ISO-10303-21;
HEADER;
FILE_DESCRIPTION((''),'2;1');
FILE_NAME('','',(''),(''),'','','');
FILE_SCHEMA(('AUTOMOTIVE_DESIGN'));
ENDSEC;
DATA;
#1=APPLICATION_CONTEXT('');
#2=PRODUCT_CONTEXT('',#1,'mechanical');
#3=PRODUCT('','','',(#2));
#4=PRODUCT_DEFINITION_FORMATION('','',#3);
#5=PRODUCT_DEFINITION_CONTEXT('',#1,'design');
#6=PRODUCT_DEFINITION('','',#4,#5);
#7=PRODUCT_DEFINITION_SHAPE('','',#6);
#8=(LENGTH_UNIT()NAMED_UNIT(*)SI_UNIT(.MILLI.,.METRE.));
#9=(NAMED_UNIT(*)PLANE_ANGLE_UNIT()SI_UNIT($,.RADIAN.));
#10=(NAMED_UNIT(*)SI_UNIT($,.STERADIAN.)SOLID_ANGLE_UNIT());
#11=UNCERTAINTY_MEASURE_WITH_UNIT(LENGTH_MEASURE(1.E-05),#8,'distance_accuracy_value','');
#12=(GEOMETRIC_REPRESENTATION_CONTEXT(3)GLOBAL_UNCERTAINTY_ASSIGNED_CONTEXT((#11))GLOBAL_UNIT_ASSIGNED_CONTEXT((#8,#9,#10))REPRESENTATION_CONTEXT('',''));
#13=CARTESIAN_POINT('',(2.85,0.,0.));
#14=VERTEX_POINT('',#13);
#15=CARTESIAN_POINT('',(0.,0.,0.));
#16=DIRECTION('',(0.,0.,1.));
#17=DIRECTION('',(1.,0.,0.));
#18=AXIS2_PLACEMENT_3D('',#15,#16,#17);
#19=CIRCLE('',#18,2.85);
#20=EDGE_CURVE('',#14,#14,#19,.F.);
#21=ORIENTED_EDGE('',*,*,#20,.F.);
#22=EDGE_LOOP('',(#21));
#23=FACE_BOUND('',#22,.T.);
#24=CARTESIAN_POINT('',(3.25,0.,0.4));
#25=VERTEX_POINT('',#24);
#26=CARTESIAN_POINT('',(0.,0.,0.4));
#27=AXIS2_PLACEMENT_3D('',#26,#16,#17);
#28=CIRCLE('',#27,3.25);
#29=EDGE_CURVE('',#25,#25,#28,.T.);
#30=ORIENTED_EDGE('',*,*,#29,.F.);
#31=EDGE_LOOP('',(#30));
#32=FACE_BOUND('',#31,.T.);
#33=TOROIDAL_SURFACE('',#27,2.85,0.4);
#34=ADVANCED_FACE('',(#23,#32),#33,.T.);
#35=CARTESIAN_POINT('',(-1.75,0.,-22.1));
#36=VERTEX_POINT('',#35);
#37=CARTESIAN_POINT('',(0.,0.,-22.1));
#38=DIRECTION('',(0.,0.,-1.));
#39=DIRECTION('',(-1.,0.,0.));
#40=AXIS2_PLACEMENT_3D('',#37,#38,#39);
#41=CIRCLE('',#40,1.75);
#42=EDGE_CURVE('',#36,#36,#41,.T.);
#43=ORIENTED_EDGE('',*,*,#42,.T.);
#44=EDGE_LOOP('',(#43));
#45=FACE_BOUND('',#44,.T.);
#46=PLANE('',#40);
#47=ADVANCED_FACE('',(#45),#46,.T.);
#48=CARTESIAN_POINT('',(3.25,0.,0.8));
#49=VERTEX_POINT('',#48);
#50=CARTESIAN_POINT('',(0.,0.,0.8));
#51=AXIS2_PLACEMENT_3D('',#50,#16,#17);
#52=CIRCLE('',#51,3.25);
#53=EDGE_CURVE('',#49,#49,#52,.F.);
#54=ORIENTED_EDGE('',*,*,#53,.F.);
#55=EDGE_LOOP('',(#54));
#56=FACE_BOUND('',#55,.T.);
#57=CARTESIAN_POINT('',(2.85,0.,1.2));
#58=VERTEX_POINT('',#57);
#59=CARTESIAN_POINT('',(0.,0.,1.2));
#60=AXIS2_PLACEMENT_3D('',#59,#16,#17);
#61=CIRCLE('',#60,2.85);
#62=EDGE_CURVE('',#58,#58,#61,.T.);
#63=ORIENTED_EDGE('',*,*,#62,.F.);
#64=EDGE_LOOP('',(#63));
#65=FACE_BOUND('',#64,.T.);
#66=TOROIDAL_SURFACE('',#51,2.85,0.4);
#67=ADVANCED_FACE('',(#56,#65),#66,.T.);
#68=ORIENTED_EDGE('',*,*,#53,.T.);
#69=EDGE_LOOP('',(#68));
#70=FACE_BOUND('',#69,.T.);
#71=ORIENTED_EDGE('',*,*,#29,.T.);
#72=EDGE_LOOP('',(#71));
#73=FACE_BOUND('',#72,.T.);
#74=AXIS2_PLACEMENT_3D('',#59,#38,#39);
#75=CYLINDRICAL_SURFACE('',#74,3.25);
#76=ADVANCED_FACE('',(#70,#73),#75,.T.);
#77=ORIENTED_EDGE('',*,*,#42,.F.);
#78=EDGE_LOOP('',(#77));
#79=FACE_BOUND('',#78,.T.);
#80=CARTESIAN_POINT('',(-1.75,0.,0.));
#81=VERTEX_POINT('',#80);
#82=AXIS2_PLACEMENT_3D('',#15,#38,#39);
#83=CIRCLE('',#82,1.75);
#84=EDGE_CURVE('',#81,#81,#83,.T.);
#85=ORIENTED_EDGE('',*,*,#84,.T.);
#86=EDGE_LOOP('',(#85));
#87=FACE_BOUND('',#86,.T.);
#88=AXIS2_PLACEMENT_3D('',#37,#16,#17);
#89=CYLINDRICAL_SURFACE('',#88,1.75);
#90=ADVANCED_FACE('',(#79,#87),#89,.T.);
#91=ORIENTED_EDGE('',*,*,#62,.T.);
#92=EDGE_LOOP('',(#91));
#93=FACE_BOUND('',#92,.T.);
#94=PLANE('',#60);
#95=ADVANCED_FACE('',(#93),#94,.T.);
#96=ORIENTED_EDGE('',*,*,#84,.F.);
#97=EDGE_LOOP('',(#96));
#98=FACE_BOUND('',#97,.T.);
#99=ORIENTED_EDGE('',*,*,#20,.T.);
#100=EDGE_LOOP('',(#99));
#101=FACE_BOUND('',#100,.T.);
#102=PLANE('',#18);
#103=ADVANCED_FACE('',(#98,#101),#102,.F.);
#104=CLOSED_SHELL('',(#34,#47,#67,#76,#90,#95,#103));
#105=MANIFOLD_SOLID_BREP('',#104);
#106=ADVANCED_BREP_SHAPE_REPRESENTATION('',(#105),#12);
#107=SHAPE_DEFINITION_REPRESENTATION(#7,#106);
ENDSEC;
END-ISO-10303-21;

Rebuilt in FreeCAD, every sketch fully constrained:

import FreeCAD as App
import Part
import Sketcher
from FreeCAD import Vector


def edges_at(feature, points):
    """Names of the edges that pass closest to the given points."""
    edges = feature.Shape.Edges
    near = lambda p: min(range(len(edges)), key=lambda i: edges[i].distToShape(Part.Vertex(*p))[0])
    return sorted({f"Edge{near(p) + 1}" for p in points})

doc = App.newDocument("Part")
params = doc.addObject("Spreadsheet::Sheet", "Params")
for row, (alias, value) in enumerate([
    ("sketch1_diameter", "6.5 mm"),
    ("pad1_length", "1.2 mm"),
    ("sketch2_diameter", "3.5 mm"),
    ("pad2_length", "22.1 mm"),
    ("fillet_radius", "0.4 mm"),
], start=1):
    params.set(f"A{row}", alias)
    params.set(f"B{row}", "=" + value)
    params.setAlias(f"B{row}", alias)

body = doc.addObject("PartDesign::Body", "Body")

sketch1 = body.newObject("Sketcher::SketchObject", "Sketch")
sketch1.AttachmentSupport = (doc.getObject("XY_Plane"), [""])
sketch1.MapMode = "FlatFace"
sketch1.addGeometry(Part.Circle(Vector(0, 0, 0), Vector(0, 0, 1), 3.2), False)
sketch1.addConstraint([
    Sketcher.Constraint("Coincident", 0, 3, -1, 1),
    Sketcher.Constraint("Diameter", 0, 6.5),
])
sketch1.setExpression("Constraints[1]", "Params.sketch1_diameter")
pad1 = body.newObject("PartDesign::Pad", "Pad")
pad1.Profile = sketch1
pad1.setExpression("Length", "Params.pad1_length")

sketch2 = body.newObject("Sketcher::SketchObject", "Sketch001")
sketch2.AttachmentSupport = (doc.getObject("XY_Plane"), [""])
sketch2.MapMode = "FlatFace"
sketch2.addGeometry(Part.Circle(Vector(0, 0, 0), Vector(0, 0, 1), 1.8), False)
sketch2.addConstraint([
    Sketcher.Constraint("Coincident", 0, 3, -1, 1),
    Sketcher.Constraint("Diameter", 0, 3.5),
])
sketch2.setExpression("Constraints[1]", "Params.sketch2_diameter")
pad2 = body.newObject("PartDesign::Pad", "Pad001")
pad2.Profile = sketch2
pad2.setExpression("Length", "Params.pad2_length")
pad2.Reversed = True
doc.recompute()

fillet = body.newObject("PartDesign::Fillet", "Fillet")
fillet.Base = (pad2, edges_at(pad2, [(-3.25, 0, 0), (-3.25, 0, 1.2)]))
fillet.setExpression("Radius", "Params.fillet_radius")

doc.recompute()
